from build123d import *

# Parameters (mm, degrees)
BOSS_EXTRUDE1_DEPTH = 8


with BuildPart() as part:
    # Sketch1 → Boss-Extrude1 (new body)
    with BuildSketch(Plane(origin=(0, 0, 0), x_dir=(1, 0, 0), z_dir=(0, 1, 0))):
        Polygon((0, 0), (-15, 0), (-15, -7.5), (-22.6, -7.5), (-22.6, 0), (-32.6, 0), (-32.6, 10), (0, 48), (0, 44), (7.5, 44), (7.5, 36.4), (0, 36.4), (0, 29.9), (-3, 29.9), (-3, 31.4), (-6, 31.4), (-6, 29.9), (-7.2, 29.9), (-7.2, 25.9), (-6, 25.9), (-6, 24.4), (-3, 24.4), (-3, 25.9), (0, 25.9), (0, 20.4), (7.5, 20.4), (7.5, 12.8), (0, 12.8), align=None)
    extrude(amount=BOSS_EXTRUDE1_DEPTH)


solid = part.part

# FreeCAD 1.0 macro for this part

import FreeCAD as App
import Part
import Sketcher

V = App.Vector

doc = App.newDocument("Part")
body = doc.addObject("PartDesign::Body", "Body")

sketch1 = doc.addObject("Sketcher::SketchObject", "Sketch")
body.addObject(sketch1)
sketch1.AttachmentSupport = (doc.XZ_Plane, [""])
sketch1.MapMode = "FlatFace"
sketch1.addGeometry([
    Part.LineSegment(V(-15, 0, 0), V(0, 0, 0)),
    Part.LineSegment(V(0, 0, 0), V(0, -12.8, 0)),
    Part.LineSegment(V(0, -12.8, 0), V(7.5, -12.8, 0)),
    Part.LineSegment(V(7.5, -12.8, 0), V(7.5, -20.4, 0)),
    Part.LineSegment(V(7.5, -20.4, 0), V(0, -20.4, 0)),
    Part.LineSegment(V(0, -20.4, 0), V(0, -25.9, 0)),
    Part.LineSegment(V(0, -25.9, 0), V(-3, -25.9, 0)),
    Part.LineSegment(V(-3, -25.9, 0), V(-3, -24.4, 0)),
    Part.LineSegment(V(-3, -24.4, 0), V(-6, -24.4, 0)),
    Part.LineSegment(V(-6, -24.4, 0), V(-6, -25.9, 0)),
    Part.LineSegment(V(-6, -25.9, 0), V(-7.2, -25.9, 0)),
    Part.LineSegment(V(-7.2, -25.9, 0), V(-7.2, -29.9, 0)),
    Part.LineSegment(V(-7.2, -29.9, 0), V(-6, -29.9, 0)),
    Part.LineSegment(V(-6, -29.9, 0), V(-6, -31.4, 0)),
    Part.LineSegment(V(-6, -31.4, 0), V(-3, -31.4, 0)),
    Part.LineSegment(V(-3, -31.4, 0), V(-3, -29.9, 0)),
    Part.LineSegment(V(-3, -29.9, 0), V(0, -29.9, 0)),
    Part.LineSegment(V(0, -29.9, 0), V(0, -36.4, 0)),
    Part.LineSegment(V(0, -36.4, 0), V(7.5, -36.4, 0)),
    Part.LineSegment(V(7.5, -36.4, 0), V(7.5, -44, 0)),
    Part.LineSegment(V(7.5, -44, 0), V(0, -44, 0)),
    Part.LineSegment(V(0, -44, 0), V(0, -48, 0)),
    Part.LineSegment(V(0, -48, 0), V(-32.6, -10, 0)),
    Part.LineSegment(V(-32.6, -10, 0), V(-32.6, 0, 0)),
    Part.LineSegment(V(-32.6, 0, 0), V(-22.6, 0, 0)),
    Part.LineSegment(V(-22.6, 0, 0), V(-22.6, 7.5, 0)),
    Part.LineSegment(V(-22.6, 7.5, 0), V(-15, 7.5, 0)),
    Part.LineSegment(V(-15, 7.5, 0), V(-15, 0, 0)),
], False)
sketch1.addConstraint([
    Sketcher.Constraint("Coincident", 0, 2, 1, 1),
    Sketcher.Constraint("Coincident", 1, 2, 2, 1),
    Sketcher.Constraint("Coincident", 2, 2, 3, 1),
    Sketcher.Constraint("Coincident", 3, 2, 4, 1),
    Sketcher.Constraint("Coincident", 4, 2, 5, 1),
    Sketcher.Constraint("Coincident", 5, 2, 6, 1),
    Sketcher.Constraint("Coincident", 6, 2, 7, 1),
    Sketcher.Constraint("Coincident", 7, 2, 8, 1),
    Sketcher.Constraint("Coincident", 8, 2, 9, 1),
    Sketcher.Constraint("Coincident", 9, 2, 10, 1),
    Sketcher.Constraint("Coincident", 10, 2, 11, 1),
    Sketcher.Constraint("Coincident", 11, 2, 12, 1),
    Sketcher.Constraint("Coincident", 12, 2, 13, 1),
    Sketcher.Constraint("Coincident", 13, 2, 14, 1),
    Sketcher.Constraint("Coincident", 14, 2, 15, 1),
    Sketcher.Constraint("Coincident", 15, 2, 16, 1),
    Sketcher.Constraint("Coincident", 16, 2, 17, 1),
    Sketcher.Constraint("Coincident", 17, 2, 18, 1),
    Sketcher.Constraint("Coincident", 18, 2, 19, 1),
    Sketcher.Constraint("Coincident", 19, 2, 20, 1),
    Sketcher.Constraint("Coincident", 20, 2, 21, 1),
    Sketcher.Constraint("Coincident", 21, 2, 22, 1),
    Sketcher.Constraint("Coincident", 22, 2, 23, 1),
    Sketcher.Constraint("Coincident", 23, 2, 24, 1),
    Sketcher.Constraint("Coincident", 24, 2, 25, 1),
    Sketcher.Constraint("Coincident", 25, 2, 26, 1),
    Sketcher.Constraint("Coincident", 26, 2, 27, 1),
    Sketcher.Constraint("Coincident", 27, 2, 0, 1),
    Sketcher.Constraint("Horizontal", 0),
    Sketcher.Constraint("Vertical", 1),
    Sketcher.Constraint("Horizontal", 2),
    Sketcher.Constraint("Vertical", 3),
    Sketcher.Constraint("Horizontal", 4),
    Sketcher.Constraint("Vertical", 5),
    Sketcher.Constraint("Horizontal", 6),
    Sketcher.Constraint("Vertical", 7),
    Sketcher.Constraint("Horizontal", 8),
    Sketcher.Constraint("Vertical", 9),
    Sketcher.Constraint("Horizontal", 10),
    Sketcher.Constraint("Vertical", 11),
    Sketcher.Constraint("Horizontal", 12),
    Sketcher.Constraint("Vertical", 13),
    Sketcher.Constraint("Horizontal", 14),
    Sketcher.Constraint("Vertical", 15),
    Sketcher.Constraint("Horizontal", 16),
    Sketcher.Constraint("Vertical", 17),
    Sketcher.Constraint("Horizontal", 18),
    Sketcher.Constraint("Vertical", 19),
    Sketcher.Constraint("Horizontal", 20),
    Sketcher.Constraint("Vertical", 21),
    Sketcher.Constraint("Vertical", 23),
    Sketcher.Constraint("Horizontal", 24),
    Sketcher.Constraint("Vertical", 25),
    Sketcher.Constraint("Horizontal", 26),
    Sketcher.Constraint("Vertical", 27),
    Sketcher.Constraint("Coincident", 0, 2, -1, 1),
    Sketcher.Constraint("PointOnObject", 4, 2, -2),
    Sketcher.Constraint("PointOnObject", 16, 2, -2),
    Sketcher.Constraint("PointOnObject", 20, 2, -2),
    Sketcher.Constraint("PointOnObject", 23, 2, -1),
    Sketcher.Constraint("Horizontal", 6, 2, 9, 2),
    Sketcher.Constraint("Horizontal", 12, 2, 15, 2),
    Sketcher.Constraint("Vertical", 9, 2, 12, 2),
    Sketcher.Constraint("Vertical", 7, 2, 14, 2),
    Sketcher.Constraint("Vertical", 3, 2, 18, 2),
    Sketcher.Constraint("Equal", 6, 8),
    Sketcher.Constraint("Equal", 26, 3),
    Sketcher.Constraint("Equal", 9, 13),
    Sketcher.Constraint("Equal", 3, 19),
    Sketcher.Constraint("Equal", 11, 21),
    Sketcher.Constraint("Equal", 24, 23),
    Sketcher.Constraint("Equal", 20, 25),
    Sketcher.Constraint("DistanceX", 0, 1, 0, 2, 15.0),
    Sketcher.Constraint("DistanceX", 6, 2, 6, 1, 3.0),
    Sketcher.Constraint("DistanceX", 24, 1, 24, 2, 10.0),
    Sketcher.Constraint("DistanceY", 11, 2, 11, 1, 4.0),
    Sketcher.Constraint("DistanceX", 2, 1, 2, 2, 7.5),
    Sketcher.Constraint("DistanceX", 10, 2, 10, 1, 1.2),
    Sketcher.Constraint("DistanceX", 26, 1, 26, 2, 7.6),
    Sketcher.Constraint("DistanceY", 1, 2, 1, 1, 12.8),
    Sketcher.Constraint("DistanceY", 5, 2, 5, 1, 5.5),
    Sketcher.Constraint("DistanceY", 7, 1, 7, 2, 1.5),
    Sketcher.Constraint("DistanceY", 17, 2, 17, 1, 6.5),
])
pad1 = doc.addObject("PartDesign::Pad", "Pad")
body.addObject(pad1)
pad1.Profile = sketch1
pad1.Length = 8
pad1.Reversed = True

doc.recompute()
